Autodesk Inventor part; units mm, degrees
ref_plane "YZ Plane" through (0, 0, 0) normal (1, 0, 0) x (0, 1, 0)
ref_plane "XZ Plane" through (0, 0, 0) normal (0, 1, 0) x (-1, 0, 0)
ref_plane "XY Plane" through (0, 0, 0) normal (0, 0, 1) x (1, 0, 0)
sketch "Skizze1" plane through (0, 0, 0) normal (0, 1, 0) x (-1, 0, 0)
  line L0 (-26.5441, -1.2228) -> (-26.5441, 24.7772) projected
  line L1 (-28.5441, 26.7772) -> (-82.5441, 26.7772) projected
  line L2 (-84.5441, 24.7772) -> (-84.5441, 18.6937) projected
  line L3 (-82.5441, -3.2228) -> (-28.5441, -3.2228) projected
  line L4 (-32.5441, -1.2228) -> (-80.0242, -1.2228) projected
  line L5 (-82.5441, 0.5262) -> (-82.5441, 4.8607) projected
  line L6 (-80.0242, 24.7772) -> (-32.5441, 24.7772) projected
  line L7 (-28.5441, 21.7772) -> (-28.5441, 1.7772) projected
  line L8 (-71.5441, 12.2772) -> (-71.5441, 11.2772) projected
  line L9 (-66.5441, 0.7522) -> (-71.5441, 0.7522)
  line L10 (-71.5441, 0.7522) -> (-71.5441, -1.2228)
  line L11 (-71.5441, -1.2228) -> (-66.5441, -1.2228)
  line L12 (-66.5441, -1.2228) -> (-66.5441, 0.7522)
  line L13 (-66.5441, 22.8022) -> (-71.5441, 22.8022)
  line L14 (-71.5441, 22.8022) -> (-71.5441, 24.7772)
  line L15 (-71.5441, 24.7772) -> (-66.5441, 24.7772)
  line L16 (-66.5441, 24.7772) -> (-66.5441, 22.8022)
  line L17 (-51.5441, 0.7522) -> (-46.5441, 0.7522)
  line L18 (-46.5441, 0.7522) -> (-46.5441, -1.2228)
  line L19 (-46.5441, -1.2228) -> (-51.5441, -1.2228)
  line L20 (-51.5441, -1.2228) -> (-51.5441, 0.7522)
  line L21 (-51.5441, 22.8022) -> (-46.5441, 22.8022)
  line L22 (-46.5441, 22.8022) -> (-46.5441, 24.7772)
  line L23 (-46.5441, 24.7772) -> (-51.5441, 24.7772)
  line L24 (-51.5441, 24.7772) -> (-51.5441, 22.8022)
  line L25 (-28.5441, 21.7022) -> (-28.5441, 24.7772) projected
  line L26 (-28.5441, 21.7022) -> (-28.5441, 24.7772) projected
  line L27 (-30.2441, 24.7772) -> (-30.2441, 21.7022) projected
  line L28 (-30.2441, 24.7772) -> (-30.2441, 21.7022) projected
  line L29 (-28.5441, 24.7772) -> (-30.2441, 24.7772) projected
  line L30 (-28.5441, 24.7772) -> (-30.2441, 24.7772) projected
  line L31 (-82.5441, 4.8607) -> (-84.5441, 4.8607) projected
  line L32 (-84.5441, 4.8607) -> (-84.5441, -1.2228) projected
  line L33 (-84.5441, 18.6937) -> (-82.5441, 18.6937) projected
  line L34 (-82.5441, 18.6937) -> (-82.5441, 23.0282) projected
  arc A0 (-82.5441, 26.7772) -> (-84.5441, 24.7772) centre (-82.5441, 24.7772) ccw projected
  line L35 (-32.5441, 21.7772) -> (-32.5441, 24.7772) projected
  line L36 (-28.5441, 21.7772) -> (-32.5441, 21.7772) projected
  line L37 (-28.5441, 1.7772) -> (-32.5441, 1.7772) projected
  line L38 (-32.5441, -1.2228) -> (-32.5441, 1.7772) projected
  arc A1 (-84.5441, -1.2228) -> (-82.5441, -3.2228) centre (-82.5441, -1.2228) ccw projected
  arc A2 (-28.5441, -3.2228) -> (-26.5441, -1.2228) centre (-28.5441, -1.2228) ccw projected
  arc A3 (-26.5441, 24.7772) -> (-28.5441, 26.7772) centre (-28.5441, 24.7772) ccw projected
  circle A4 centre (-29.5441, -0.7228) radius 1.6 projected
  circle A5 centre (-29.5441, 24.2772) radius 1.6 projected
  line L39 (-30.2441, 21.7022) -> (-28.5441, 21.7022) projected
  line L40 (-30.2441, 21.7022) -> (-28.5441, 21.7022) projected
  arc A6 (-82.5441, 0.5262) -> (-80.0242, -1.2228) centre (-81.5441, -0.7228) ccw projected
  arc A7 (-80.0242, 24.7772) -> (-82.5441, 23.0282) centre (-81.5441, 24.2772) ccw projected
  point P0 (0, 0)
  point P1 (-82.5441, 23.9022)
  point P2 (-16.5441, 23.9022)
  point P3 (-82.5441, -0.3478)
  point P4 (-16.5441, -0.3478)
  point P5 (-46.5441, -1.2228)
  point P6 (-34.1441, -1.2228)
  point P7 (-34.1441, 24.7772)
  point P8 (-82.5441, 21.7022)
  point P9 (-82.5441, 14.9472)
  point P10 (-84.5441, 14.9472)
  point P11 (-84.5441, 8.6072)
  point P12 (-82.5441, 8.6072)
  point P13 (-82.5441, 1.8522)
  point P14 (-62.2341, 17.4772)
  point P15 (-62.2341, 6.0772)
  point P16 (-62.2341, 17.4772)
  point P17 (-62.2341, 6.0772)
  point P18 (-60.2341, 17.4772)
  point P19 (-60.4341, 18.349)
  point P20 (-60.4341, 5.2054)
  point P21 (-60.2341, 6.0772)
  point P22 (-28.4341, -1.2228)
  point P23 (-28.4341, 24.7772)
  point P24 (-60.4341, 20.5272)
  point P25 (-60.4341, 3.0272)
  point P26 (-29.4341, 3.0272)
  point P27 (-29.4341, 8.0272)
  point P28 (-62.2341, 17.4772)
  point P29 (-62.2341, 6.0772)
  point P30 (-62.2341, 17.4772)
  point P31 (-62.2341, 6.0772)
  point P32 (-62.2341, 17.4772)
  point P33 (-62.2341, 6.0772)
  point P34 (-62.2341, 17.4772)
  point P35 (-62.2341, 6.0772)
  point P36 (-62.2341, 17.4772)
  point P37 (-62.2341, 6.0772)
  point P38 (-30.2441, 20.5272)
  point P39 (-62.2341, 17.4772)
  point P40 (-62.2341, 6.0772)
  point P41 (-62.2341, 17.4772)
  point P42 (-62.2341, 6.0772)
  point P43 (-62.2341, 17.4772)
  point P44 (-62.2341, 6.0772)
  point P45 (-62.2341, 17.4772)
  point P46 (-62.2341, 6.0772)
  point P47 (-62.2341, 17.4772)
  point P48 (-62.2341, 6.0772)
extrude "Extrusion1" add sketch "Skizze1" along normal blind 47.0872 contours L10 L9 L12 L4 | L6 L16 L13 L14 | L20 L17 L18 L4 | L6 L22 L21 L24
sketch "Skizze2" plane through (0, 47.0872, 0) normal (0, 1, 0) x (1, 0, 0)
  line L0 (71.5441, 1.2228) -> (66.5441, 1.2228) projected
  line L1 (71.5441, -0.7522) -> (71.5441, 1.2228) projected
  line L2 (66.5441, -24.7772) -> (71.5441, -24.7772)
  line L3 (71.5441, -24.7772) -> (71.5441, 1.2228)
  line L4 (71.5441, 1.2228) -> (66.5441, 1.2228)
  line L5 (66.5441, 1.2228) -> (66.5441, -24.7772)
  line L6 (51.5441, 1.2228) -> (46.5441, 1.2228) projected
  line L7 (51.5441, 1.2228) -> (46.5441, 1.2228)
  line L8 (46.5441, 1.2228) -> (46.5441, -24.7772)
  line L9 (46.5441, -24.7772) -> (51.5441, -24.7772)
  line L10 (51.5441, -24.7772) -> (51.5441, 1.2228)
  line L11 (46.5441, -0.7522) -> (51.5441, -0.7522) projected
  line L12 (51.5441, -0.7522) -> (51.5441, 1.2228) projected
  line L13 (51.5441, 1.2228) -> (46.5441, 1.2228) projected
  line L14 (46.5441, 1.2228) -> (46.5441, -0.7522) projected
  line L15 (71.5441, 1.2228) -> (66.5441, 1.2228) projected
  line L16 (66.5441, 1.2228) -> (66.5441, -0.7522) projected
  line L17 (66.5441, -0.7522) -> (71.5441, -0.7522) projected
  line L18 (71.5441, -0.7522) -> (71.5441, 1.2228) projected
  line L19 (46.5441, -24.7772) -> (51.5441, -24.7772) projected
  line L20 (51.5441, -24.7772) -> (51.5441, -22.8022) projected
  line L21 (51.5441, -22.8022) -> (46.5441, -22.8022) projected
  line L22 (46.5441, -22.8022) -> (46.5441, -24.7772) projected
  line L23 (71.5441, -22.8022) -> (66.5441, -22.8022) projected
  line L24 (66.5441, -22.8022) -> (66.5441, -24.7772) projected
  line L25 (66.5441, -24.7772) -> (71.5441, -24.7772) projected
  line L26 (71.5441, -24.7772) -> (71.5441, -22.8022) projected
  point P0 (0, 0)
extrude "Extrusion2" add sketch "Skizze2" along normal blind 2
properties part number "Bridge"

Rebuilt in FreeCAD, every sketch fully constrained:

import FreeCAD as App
import Part
import Sketcher
from FreeCAD import Vector
Q = App.Units.Quantity


def add_polygon(sketch, points):
    """Adds a closed chain of lines whose ends are joined by coincident constraints."""
    first, n = sketch.GeometryCount, len(points)
    for a, b in zip(points, points[1:] + points[:1]):
        sketch.addGeometry(Part.LineSegment(App.Vector(*a, 0), App.Vector(*b, 0)), False)
    for i in range(n):
        sketch.addConstraint(Sketcher.Constraint("Coincident", first + i, 2, first + (i + 1) % n, 1))

doc = App.newDocument("Part")
body = doc.addObject("PartDesign::Body", "Body")
body.AllowCompound = True

# Sketch on XZ plane
sketch1 = doc.addObject("Sketcher::SketchObject", "Sketch")
body.addObject(sketch1)
sketch1.AttachmentSupport = (doc.XZ_Plane, [""])
sketch1.MapMode = "FlatFace"
add_polygon(sketch1, [(71.5441, 0.7522), (71.5441, -1.2228), (66.5441, -1.2228), (66.5441, 0.7522)])  # lines 0-3
add_polygon(sketch1, [(66.5441, 24.7772), (71.5441, 24.7772), (71.5441, 22.8022), (66.5441, 22.8022)])  # lines 4-7
add_polygon(sketch1, [(51.5441, 0.7522), (51.5441, -1.2228), (46.5441, -1.2228), (46.5441, 0.7522)])  # lines 8-11
add_polygon(sketch1, [(46.5441, 24.7772), (51.5441, 24.7772), (51.5441, 22.8022), (46.5441, 22.8022)])  # lines 12-15
sketch1.addConstraint(Sketcher.Constraint("Vertical", 0))
sketch1.addConstraint(Sketcher.Constraint("Horizontal", 1))
sketch1.addConstraint(Sketcher.Constraint("Vertical", 2))
sketch1.addConstraint(Sketcher.Constraint("Horizontal", 3))
sketch1.addConstraint(Sketcher.Constraint("Horizontal", 4))
sketch1.addConstraint(Sketcher.Constraint("Vertical", 5))
sketch1.addConstraint(Sketcher.Constraint("Horizontal", 6))
sketch1.addConstraint(Sketcher.Constraint("Vertical", 7))
sketch1.addConstraint(Sketcher.Constraint("Vertical", 8))
sketch1.addConstraint(Sketcher.Constraint("Horizontal", 9))
sketch1.addConstraint(Sketcher.Constraint("Vertical", 10))
sketch1.addConstraint(Sketcher.Constraint("Horizontal", 11))
sketch1.addConstraint(Sketcher.Constraint("Horizontal", 12))
sketch1.addConstraint(Sketcher.Constraint("Vertical", 13))
sketch1.addConstraint(Sketcher.Constraint("Horizontal", 14))
sketch1.addConstraint(Sketcher.Constraint("Vertical", 15))
sketch1.addConstraint(Sketcher.Constraint("Horizontal", 1, 2, 8, 2))
sketch1.addConstraint(Sketcher.Constraint("Horizontal", 3, 2, 10, 2))
sketch1.addConstraint(Sketcher.Constraint("Horizontal", 7, 2, 12, 2))
sketch1.addConstraint(Sketcher.Constraint("Horizontal", 6, 2, 13, 2))
sketch1.addConstraint(Sketcher.Constraint("Vertical", 3, 2, 4, 2))
sketch1.addConstraint(Sketcher.Constraint("Vertical", 2, 2, 6, 2))
sketch1.addConstraint(Sketcher.Constraint("Vertical", 11, 2, 12, 2))
sketch1.addConstraint(Sketcher.Constraint("Vertical", 10, 2, 14, 2))
sketch1.addConstraint(Sketcher.Constraint("Equal", 6, 9))
sketch1.addConstraint(Sketcher.Constraint("Equal", 2, 5))
sketch1.addConstraint(Sketcher.Constraint("DistanceX", 1, 2, 1, 1, Q("5 mm")))
sketch1.addConstraint(Sketcher.Constraint("DistanceY", 0, 2, 4, 2, Q("26 mm")))
sketch1.addConstraint(Sketcher.Constraint("DistanceX", 8, 2, 1, 2, Q("15 mm")))
sketch1.addConstraint(Sketcher.Constraint("DistanceY", 0, 2, 0, 1, Q("1.975 mm")))
sketch1.addConstraint(Sketcher.Constraint("DistanceX", -1, 1, 0, 2, Q("71.544 mm")))
sketch1.addConstraint(Sketcher.Constraint("DistanceY", 0, 2, -1, 1, Q("1.2228 mm")))
pad1 = doc.addObject("PartDesign::Pad", "Pad")
body.addObject(pad1)
pad1.Profile = sketch1
pad1.Length = 47.0872
pad1.Reversed = True

# Sketch on XZ plane
sketch2 = doc.addObject("Sketcher::SketchObject", "Sketch001")
body.addObject(sketch2)
sketch2.AttachmentSupport = (doc.XZ_Plane, [""])
sketch2.MapMode = "FlatFace"
sketch2.AttachmentOffset = App.Placement(Vector(0, 0, -47.0872), App.Rotation())
add_polygon(sketch2, [(71.5441, -1.2228), (66.5441, -1.2228), (66.5441, 24.7772), (71.5441, 24.7772)])  # lines 0-3
add_polygon(sketch2, [(51.5441, -1.2228), (46.5441, -1.2228), (46.5441, 24.7772), (51.5441, 24.7772)])  # lines 4-7
sketch2.addConstraint(Sketcher.Constraint("Horizontal", 0))
sketch2.addConstraint(Sketcher.Constraint("Vertical", 1))
sketch2.addConstraint(Sketcher.Constraint("Horizontal", 2))
sketch2.addConstraint(Sketcher.Constraint("Vertical", 3))
sketch2.addConstraint(Sketcher.Constraint("Horizontal", 4))
sketch2.addConstraint(Sketcher.Constraint("Vertical", 5))
sketch2.addConstraint(Sketcher.Constraint("Horizontal", 6))
sketch2.addConstraint(Sketcher.Constraint("Vertical", 7))
sketch2.addConstraint(Sketcher.Constraint("Horizontal", 3, 2, 4, 2))
sketch2.addConstraint(Sketcher.Constraint("Horizontal", 2, 2, 5, 2))
sketch2.addConstraint(Sketcher.Constraint("Equal", 2, 4))
sketch2.addConstraint(Sketcher.Constraint("DistanceX", 0, 2, 0, 1, Q("5 mm")))
sketch2.addConstraint(Sketcher.Constraint("DistanceY", 1, 1, 1, 2, Q("26 mm")))
sketch2.addConstraint(Sketcher.Constraint("DistanceX", 4, 2, 0, 2, Q("20 mm")))
sketch2.addConstraint(Sketcher.Constraint("DistanceX", -1, 1, 0, 2, Q("66.544 mm")))
sketch2.addConstraint(Sketcher.Constraint("DistanceY", 0, 2, -1, 1, Q("1.2228 mm")))
pad2 = doc.addObject("PartDesign::Pad", "Pad001")
body.addObject(pad2)
pad2.Profile = sketch2
pad2.Length = 2
pad2.Reversed = True

doc.recompute()
